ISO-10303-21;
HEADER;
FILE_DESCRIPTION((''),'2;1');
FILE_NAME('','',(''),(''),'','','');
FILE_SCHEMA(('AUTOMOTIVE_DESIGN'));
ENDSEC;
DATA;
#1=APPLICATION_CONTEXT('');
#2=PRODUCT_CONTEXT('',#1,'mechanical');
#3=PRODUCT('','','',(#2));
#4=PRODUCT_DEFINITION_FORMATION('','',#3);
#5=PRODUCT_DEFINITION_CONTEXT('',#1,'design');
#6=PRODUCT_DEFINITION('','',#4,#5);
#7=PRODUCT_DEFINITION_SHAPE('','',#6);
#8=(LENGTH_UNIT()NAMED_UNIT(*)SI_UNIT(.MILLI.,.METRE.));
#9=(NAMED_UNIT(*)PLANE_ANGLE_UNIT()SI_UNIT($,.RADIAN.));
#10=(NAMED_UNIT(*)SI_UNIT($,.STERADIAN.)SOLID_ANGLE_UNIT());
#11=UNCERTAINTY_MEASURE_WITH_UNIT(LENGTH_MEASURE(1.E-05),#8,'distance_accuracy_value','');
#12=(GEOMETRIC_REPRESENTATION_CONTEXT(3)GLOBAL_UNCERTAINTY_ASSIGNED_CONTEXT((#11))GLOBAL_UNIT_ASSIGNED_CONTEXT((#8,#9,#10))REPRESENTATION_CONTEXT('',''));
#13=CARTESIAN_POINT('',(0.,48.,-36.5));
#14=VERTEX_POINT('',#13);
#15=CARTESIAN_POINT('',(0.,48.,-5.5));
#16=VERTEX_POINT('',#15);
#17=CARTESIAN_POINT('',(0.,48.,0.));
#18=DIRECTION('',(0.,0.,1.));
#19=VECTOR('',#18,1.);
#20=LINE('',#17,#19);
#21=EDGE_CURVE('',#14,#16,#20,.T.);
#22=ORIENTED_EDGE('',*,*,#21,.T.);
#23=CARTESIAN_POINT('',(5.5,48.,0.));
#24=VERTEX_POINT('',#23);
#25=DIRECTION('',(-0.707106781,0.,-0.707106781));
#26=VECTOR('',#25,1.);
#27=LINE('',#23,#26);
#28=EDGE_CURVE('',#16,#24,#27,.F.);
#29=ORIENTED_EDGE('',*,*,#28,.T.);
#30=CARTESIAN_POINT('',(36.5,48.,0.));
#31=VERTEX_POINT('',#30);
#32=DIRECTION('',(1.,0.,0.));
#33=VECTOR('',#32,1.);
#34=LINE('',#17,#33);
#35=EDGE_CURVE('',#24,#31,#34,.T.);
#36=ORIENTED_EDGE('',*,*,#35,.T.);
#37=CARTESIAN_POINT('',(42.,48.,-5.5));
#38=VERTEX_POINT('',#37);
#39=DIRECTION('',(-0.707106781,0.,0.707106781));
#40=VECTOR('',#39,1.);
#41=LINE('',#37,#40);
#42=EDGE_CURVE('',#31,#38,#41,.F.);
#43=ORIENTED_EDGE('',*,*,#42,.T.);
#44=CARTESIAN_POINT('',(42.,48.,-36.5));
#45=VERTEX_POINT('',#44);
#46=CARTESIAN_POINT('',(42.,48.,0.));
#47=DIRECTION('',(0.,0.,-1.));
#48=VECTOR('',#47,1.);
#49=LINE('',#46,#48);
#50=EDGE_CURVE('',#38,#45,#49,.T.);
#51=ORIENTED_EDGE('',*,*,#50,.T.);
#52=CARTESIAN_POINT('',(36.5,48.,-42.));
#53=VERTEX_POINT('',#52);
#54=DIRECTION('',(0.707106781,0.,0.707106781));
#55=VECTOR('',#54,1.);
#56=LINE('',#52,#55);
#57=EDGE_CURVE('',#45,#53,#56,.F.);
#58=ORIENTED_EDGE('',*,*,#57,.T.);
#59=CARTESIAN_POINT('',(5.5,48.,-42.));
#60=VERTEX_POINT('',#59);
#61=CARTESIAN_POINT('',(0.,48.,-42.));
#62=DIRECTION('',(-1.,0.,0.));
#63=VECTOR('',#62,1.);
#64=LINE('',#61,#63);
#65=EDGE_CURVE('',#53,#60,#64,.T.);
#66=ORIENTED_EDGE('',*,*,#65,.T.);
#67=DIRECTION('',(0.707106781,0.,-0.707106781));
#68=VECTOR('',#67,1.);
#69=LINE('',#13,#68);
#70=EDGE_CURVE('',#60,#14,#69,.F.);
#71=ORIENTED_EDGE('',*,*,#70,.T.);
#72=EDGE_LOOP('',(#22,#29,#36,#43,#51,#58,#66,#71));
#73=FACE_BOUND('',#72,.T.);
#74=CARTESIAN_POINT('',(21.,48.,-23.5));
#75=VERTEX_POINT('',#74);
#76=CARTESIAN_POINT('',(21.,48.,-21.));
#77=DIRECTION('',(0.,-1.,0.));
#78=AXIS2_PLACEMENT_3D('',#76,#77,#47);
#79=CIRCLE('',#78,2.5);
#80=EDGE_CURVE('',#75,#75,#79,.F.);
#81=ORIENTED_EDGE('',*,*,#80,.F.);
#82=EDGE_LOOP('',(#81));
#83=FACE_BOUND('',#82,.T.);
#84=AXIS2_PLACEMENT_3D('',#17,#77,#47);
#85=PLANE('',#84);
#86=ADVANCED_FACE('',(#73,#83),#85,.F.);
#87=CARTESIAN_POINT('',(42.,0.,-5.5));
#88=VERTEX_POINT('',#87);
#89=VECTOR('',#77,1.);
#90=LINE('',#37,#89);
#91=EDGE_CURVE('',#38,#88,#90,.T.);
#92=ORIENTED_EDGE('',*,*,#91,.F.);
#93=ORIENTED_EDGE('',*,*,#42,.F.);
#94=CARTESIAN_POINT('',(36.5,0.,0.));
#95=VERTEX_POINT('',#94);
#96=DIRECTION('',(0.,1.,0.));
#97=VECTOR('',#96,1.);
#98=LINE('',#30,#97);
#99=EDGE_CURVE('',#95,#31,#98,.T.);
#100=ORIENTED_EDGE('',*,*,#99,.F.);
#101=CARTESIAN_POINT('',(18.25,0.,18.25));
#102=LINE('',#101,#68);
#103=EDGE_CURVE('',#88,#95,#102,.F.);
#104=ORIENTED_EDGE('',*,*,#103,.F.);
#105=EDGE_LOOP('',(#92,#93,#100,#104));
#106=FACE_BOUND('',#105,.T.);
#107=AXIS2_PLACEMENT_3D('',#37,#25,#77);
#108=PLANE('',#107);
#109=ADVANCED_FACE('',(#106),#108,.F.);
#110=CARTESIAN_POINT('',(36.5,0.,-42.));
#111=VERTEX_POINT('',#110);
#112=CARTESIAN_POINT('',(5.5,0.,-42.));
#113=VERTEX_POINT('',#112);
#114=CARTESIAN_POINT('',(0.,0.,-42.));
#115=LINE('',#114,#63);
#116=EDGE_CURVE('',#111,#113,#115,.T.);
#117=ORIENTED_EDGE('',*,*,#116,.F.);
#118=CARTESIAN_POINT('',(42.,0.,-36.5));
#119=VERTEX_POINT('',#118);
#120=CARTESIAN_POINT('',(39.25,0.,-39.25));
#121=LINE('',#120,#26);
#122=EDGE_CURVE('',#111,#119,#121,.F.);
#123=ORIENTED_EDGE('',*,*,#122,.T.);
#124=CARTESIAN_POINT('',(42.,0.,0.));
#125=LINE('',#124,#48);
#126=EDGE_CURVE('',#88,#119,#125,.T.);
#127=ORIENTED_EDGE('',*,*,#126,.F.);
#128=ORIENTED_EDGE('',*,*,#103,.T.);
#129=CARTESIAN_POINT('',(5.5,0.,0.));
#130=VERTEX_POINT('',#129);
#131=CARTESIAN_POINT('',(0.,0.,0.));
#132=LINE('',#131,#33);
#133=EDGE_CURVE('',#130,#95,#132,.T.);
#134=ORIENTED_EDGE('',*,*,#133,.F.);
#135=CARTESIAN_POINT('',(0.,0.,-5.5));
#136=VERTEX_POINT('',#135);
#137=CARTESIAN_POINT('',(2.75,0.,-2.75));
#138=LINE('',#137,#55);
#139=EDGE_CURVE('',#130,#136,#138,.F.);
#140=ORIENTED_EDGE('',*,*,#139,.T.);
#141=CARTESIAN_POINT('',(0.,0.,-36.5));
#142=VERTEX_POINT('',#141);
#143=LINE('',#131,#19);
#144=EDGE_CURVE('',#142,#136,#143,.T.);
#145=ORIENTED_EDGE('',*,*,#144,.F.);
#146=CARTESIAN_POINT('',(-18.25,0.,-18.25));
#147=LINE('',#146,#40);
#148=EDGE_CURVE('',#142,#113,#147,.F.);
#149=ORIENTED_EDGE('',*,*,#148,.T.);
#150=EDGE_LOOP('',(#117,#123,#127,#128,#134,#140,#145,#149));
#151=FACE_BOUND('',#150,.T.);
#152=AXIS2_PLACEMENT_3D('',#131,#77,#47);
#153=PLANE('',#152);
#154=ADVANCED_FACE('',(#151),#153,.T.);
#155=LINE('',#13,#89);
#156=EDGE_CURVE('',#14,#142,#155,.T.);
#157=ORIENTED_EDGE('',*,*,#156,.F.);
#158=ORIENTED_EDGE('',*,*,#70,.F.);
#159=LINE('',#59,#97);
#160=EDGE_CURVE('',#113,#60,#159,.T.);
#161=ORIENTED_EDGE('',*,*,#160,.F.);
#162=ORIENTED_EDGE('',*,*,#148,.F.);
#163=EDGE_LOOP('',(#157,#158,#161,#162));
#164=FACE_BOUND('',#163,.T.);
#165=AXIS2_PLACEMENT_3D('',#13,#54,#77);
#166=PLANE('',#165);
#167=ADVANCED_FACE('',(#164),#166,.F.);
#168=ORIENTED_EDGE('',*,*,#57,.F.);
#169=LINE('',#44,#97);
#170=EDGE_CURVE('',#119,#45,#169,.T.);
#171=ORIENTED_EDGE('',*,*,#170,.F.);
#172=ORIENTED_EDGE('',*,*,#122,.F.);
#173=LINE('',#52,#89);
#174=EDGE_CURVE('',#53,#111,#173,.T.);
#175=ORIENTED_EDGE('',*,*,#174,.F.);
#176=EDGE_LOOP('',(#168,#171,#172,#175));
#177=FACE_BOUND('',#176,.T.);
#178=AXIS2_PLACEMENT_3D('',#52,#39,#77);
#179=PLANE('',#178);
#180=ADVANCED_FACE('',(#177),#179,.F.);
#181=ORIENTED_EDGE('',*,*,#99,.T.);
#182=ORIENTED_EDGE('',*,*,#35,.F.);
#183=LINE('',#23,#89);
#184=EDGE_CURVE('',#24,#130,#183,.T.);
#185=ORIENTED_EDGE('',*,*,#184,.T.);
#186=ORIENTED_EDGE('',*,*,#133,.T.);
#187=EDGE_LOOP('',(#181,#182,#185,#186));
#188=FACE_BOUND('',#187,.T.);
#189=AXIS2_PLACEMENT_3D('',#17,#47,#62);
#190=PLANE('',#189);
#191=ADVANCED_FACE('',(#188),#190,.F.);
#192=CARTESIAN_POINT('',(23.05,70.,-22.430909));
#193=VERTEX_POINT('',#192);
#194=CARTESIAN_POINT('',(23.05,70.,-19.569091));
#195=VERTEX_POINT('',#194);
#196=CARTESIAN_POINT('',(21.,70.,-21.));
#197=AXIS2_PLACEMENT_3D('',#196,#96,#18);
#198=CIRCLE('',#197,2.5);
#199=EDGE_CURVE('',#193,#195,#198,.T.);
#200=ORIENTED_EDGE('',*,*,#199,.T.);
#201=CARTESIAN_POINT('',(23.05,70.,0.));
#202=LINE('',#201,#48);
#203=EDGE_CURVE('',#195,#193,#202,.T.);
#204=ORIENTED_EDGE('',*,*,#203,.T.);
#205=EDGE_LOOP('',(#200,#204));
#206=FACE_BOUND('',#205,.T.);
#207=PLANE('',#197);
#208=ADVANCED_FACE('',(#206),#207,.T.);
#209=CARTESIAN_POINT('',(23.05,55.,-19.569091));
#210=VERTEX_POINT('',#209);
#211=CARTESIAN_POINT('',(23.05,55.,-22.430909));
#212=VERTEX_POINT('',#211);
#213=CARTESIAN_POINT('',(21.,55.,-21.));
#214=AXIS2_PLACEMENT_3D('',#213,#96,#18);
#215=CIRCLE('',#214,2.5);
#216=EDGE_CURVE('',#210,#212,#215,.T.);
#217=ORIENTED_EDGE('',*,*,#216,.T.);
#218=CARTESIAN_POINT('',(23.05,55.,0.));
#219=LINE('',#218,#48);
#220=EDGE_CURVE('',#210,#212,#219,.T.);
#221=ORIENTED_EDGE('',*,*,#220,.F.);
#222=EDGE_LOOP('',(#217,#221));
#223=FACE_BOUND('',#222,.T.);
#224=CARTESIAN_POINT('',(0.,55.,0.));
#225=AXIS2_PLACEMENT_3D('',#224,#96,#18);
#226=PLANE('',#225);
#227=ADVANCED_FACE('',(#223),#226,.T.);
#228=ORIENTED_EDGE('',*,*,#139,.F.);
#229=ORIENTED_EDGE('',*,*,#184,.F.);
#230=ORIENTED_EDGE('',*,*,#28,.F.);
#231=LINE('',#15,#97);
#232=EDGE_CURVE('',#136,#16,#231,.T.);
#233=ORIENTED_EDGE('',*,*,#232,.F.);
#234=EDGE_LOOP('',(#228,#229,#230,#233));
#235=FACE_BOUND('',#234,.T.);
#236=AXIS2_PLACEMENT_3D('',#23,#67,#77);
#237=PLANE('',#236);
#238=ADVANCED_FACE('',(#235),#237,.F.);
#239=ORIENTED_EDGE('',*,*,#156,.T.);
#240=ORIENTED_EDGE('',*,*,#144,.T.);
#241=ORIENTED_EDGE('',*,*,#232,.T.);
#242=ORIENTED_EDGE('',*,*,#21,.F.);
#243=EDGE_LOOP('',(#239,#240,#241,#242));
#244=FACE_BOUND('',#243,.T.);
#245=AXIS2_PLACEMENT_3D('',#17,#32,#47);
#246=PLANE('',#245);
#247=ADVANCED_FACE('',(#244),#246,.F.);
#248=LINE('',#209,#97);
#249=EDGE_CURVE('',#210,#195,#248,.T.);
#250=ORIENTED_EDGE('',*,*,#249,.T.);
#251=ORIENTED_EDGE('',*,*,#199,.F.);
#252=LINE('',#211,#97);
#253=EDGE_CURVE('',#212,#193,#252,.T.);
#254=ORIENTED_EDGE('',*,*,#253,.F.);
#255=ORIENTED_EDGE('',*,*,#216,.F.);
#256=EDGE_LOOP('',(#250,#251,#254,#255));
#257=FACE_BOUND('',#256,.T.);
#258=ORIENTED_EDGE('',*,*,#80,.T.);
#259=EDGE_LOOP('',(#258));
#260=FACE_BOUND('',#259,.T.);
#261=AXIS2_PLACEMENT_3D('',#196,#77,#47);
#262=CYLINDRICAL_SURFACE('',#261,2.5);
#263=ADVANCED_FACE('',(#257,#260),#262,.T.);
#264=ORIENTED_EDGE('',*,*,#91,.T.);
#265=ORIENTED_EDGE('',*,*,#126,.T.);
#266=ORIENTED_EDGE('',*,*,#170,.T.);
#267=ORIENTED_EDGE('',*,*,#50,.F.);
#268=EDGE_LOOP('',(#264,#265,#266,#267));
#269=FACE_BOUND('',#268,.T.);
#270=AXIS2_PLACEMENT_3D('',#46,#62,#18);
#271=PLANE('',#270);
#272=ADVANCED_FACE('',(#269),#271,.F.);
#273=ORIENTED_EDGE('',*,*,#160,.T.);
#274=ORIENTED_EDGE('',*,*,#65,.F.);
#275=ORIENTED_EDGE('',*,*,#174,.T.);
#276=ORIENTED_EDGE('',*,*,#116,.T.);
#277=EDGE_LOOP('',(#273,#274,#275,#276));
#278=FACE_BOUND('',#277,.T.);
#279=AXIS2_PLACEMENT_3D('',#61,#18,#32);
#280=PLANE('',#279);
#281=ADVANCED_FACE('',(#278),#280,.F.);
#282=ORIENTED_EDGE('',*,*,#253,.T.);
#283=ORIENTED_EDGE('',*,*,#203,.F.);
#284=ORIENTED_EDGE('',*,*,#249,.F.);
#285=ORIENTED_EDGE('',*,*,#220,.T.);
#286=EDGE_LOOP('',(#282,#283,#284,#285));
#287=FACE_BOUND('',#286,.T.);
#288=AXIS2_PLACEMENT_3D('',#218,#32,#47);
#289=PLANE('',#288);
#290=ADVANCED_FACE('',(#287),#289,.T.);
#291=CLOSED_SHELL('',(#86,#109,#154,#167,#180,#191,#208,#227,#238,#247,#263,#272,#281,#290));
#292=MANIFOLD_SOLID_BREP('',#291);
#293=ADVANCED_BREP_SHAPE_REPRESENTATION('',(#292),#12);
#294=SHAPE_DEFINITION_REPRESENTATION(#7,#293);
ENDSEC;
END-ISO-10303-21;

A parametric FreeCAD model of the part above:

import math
import FreeCAD as App
import Part
import Sketcher

V = App.Vector
Q = App.Units.Quantity


def edges_at(feature, points):
    """Names of the edges that pass closest to the given points."""
    edges = feature.Shape.Edges
    near = lambda p: min(range(len(edges)), key=lambda i: edges[i].distToShape(Part.Vertex(*p))[0])
    return sorted({f"Edge{near(p) + 1}" for p in points})


def add_polygon(sketch, points):
    """Adds a closed chain of lines whose ends are joined by coincident constraints."""
    first, n = sketch.GeometryCount, len(points)
    for a, b in zip(points, points[1:] + points[:1]):
        sketch.addGeometry(Part.LineSegment(App.Vector(*a, 0), App.Vector(*b, 0)), False)
    for i in range(n):
        sketch.addConstraint(Sketcher.Constraint("Coincident", first + i, 2, first + (i + 1) % n, 1))

doc = App.newDocument("Part")
body = doc.addObject("PartDesign::Body", "Body")

# Sketch on XZ plane
sketch1 = body.newObject("Sketcher::SketchObject", "Sketch")
sketch1.AttachmentSupport = (doc.getObject("XZ_Plane"), [""])
sketch1.MapMode = "FlatFace"
add_polygon(sketch1, [(0, -42), (0, 0), (42, 0), (42, -42)])  # lines 0-3
sketch1.addConstraint(Sketcher.Constraint("Vertical", 0))
sketch1.addConstraint(Sketcher.Constraint("Horizontal", 1))
sketch1.addConstraint(Sketcher.Constraint("Vertical", 2))
sketch1.addConstraint(Sketcher.Constraint("Horizontal", 3))
sketch1.addConstraint(Sketcher.Constraint("Coincident", 0, 2, -1, 1))
sketch1.addConstraint(Sketcher.Constraint("Equal", 3, 0))
sketch1.addConstraint(Sketcher.Constraint("DistanceX", 1, 1, 1, 2, Q("42 mm")))
pad1 = body.newObject("PartDesign::Pad", "Pad")
pad1.Profile = sketch1
pad1.Length = 48
pad1.Reversed = True
doc.recompute()

chamfer = body.newObject("PartDesign::Chamfer", "Chamfer")
chamfer.Base = (pad1, edges_at(pad1, [
    (0, 24, -42),
    (42, 24, -42),
    (42, 24, 0),
    (0, 24, 0),
]))
chamfer.Size = 5.5

# Sketch on XZ plane
sketch2 = body.newObject("Sketcher::SketchObject", "Sketch001")
sketch2.AttachmentSupport = (doc.getObject("XZ_Plane"), [""])
sketch2.MapMode = "FlatFace"
sketch2.AttachmentOffset = App.Placement(V(0, 0, -48), App.Rotation())
sketch2.addGeometry(Part.Circle(V(21, -21, 0), V(0, 0, 1), 2.5), False)
sketch2.addConstraint(Sketcher.Constraint("Diameter", 0, Q("5 mm")))
sketch2.addConstraint(Sketcher.Constraint("DistanceX", -1, 1, 0, 3, Q("21 mm")))
sketch2.addConstraint(Sketcher.Constraint("DistanceY", 0, 3, -1, 1, Q("21 mm")))
pad2 = body.newObject("PartDesign::Pad", "Pad001")
pad2.Profile = sketch2
pad2.Length = 22
pad2.Reversed = True

# Sketch on XZ plane
sketch3 = body.newObject("Sketcher::SketchObject", "Sketch002")
sketch3.AttachmentSupport = (doc.getObject("XZ_Plane"), [""])
sketch3.MapMode = "FlatFace"
sketch3.AttachmentOffset = App.Placement(V(0, 0, -55), App.Rotation())
sketch3.addGeometry(Part.LineSegment(V(23.1, -22.4, 0), V(23.1, -19.6, 0)), False)
sketch3.addGeometry(Part.ArcOfCircle(Part.Circle(V(21, -21, 0), V(0, 0, 1), 2.5), math.radians(0), math.radians(35)), False)
sketch3.addGeometry(Part.ArcOfCircle(Part.Circle(V(21, -21, 0), V(0, 0, 1), 2.5), math.radians(-35), math.radians(0)), False)
sketch3.addConstraint(Sketcher.Constraint("Coincident", 0, 2, 1, 2))
sketch3.addConstraint(Sketcher.Constraint("Tangent", 1, 1, 2, 2))
sketch3.addConstraint(Sketcher.Constraint("Coincident", 2, 1, 0, 1))
sketch3.addConstraint(Sketcher.Constraint("Vertical", 0))
sketch3.addConstraint(Sketcher.Constraint("Equal", 1, 2))
sketch3.addConstraint(Sketcher.Constraint("Horizontal", 2, 3, 1, 1))
sketch3.addConstraint(Sketcher.Constraint("Radius", 1, Q("2.5 mm")))
sketch3.addConstraint(Sketcher.Constraint("DistanceX", -1, 1, 1, 3, Q("21 mm")))
sketch3.addConstraint(Sketcher.Constraint("DistanceY", 1, 3, -1, 1, Q("21 mm")))
sketch3.addConstraint(Sketcher.Constraint("DistanceX", -1, 1, 0, 2, Q("23.05 mm")))
pocket1 = body.newObject("PartDesign::Pocket", "Pocket")
pocket1.Profile = sketch3
pocket1.Length = 15

doc.recompute()
